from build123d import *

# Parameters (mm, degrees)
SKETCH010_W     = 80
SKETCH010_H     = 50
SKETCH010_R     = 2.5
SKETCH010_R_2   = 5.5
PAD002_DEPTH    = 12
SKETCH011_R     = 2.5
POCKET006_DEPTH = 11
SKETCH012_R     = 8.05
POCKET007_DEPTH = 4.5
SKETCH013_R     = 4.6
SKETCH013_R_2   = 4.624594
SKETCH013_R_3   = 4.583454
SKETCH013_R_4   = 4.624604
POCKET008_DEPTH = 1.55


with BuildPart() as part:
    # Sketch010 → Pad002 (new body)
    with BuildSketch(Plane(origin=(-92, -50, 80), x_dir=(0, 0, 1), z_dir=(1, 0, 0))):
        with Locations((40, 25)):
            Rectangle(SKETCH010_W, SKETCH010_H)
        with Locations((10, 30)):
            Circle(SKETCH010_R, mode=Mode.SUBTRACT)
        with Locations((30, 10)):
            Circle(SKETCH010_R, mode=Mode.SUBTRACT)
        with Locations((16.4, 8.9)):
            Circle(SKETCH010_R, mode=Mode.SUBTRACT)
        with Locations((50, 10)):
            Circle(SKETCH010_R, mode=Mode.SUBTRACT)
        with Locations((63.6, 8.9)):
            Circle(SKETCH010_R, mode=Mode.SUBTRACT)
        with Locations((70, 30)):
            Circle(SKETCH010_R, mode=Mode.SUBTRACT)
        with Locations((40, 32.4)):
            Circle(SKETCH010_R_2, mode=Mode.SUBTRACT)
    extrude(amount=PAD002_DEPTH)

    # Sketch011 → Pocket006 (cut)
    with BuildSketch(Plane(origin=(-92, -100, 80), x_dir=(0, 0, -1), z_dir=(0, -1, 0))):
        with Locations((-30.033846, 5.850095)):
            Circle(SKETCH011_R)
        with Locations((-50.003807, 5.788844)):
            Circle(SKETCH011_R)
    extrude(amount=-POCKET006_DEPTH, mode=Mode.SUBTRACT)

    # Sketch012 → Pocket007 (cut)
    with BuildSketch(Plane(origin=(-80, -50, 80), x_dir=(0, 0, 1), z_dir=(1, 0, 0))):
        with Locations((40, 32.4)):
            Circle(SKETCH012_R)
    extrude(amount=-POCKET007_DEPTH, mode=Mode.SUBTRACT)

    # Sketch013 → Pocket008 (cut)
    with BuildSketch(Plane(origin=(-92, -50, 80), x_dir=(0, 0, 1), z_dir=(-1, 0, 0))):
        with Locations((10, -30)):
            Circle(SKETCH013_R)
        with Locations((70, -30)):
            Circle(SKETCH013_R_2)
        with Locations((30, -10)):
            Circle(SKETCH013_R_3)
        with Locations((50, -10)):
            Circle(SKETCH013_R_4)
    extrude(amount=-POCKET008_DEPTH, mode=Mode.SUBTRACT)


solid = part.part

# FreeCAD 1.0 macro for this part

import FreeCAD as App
import Part
import Sketcher
Q = App.Units.Quantity


def add_polygon(sketch, points):
    """Adds a closed chain of lines whose ends are joined by coincident constraints."""
    first, n = sketch.GeometryCount, len(points)
    for a, b in zip(points, points[1:] + points[:1]):
        sketch.addGeometry(Part.LineSegment(App.Vector(*a, 0), App.Vector(*b, 0)), False)
    for i in range(n):
        sketch.addConstraint(Sketcher.Constraint("Coincident", first + i, 2, first + (i + 1) % n, 1))

doc = App.newDocument("Part")
params = doc.addObject("Spreadsheet::Sheet", "Params")
for row, (alias, value) in enumerate([
    ("sketch1_diameter", "5 mm"),
    ("sketch1_diameter2", "11 mm"),
    ("sketch1_width", "50 mm"),
    ("sketch1_height", "80 mm"),
    ("pad1_length", "12 mm"),
    ("sketch2_diameter", "5 mm"),
    ("pocket1_length", "11 mm"),
    ("sketch3_diameter", "16.1 mm"),
    ("pocket2_length", "4.5 mm"),
    ("sketch4_diameter", "9.2 mm"),
    ("pocket3_length", "1.55 mm"),
], start=1):
    params.set(f"A{row}", alias)
    params.set(f"B{row}", "=" + value)
    params.setAlias(f"B{row}", alias)

body = doc.addObject("PartDesign::Body", "Body")

# Sketch on YZ plane
sketch1 = body.newObject("Sketcher::SketchObject", "Sketch")
sketch1.AttachmentSupport = (doc.getObject("YZ_Plane"), [""])
sketch1.MapMode = "FlatFace"
sketch1.AttachmentOffset = App.Placement(App.Vector(0, 0, -92), App.Rotation())
add_polygon(sketch1, [(-100, 80), (-50, 80), (-50, 160), (-100, 160)])  # lines 0-3
sketch1.addGeometry(Part.Circle(App.Vector(-58.9, 96.4, 0), App.Vector(0, 0, 1), 2.5), False)  # 4
sketch1.addGeometry(Part.Circle(App.Vector(-60, 110, 0), App.Vector(0, 0, 1), 2.5), False)  # 5
sketch1.addGeometry(Part.Circle(App.Vector(-60, 130, 0), App.Vector(0, 0, 1), 2.5), False)  # 6
sketch1.addGeometry(Part.Circle(App.Vector(-58.9, 143.6, 0), App.Vector(0, 0, 1), 2.5), False)  # 7
sketch1.addGeometry(Part.Circle(App.Vector(-80, 90, 0), App.Vector(0, 0, 1), 2.5), False)  # 8
sketch1.addGeometry(Part.Circle(App.Vector(-80, 150, 0), App.Vector(0, 0, 1), 2.5), False)  # 9
sketch1.addGeometry(Part.Circle(App.Vector(-82.4, 120, 0), App.Vector(0, 0, 1), 5.5), False)  # 10
sketch1.addConstraint([
    Sketcher.Constraint("Horizontal", 0),
    Sketcher.Constraint("Vertical", 1),
    Sketcher.Constraint("Horizontal", 2),
    Sketcher.Constraint("Vertical", 3),
    Sketcher.Constraint("Equal", 4, 5),
    Sketcher.Constraint("Equal", 5, 6),
    Sketcher.Constraint("Equal", 6, 7),
    Sketcher.Constraint("Equal", 7, 8),
    Sketcher.Constraint("Equal", 8, 9),
    Sketcher.Constraint("Vertical", 5, 3, 6, 3),
    Sketcher.Constraint("Vertical", 4, 3, 7, 3),
    Sketcher.Constraint("Vertical", 8, 3, 9, 3),
    Sketcher.Constraint("Diameter", 4, Q("5 mm")),
    Sketcher.Constraint("Diameter", 10, Q("11 mm")),
    Sketcher.Constraint("DistanceX", 0, 1, 0, 2, Q("50 mm")),
    Sketcher.Constraint("DistanceY", 1, 1, 1, 2, Q("80 mm")),
    Sketcher.Constraint("DistanceX", 5, 3, -1, 1, Q("60 mm")),
    Sketcher.Constraint("DistanceY", -1, 1, 5, 3, Q("110 mm")),
    Sketcher.Constraint("DistanceY", -1, 1, 6, 3, Q("130 mm")),
    Sketcher.Constraint("DistanceX", 8, 3, -1, 1, Q("80 mm")),
    Sketcher.Constraint("DistanceY", -1, 1, 8, 3, Q("90 mm")),
    Sketcher.Constraint("DistanceY", -1, 1, 9, 3, Q("150 mm")),
    Sketcher.Constraint("DistanceY", -1, 1, 10, 3, Q("120 mm")),
    Sketcher.Constraint("DistanceX", 0, 2, -1, 1, Q("50 mm")),
    Sketcher.Constraint("DistanceY", -1, 1, 0, 2, Q("80 mm")),
    Sketcher.Constraint("DistanceX", 4, 3, -1, 1, Q("58.9 mm")),
    Sketcher.Constraint("DistanceY", -1, 1, 4, 3, Q("96.4 mm")),
    Sketcher.Constraint("DistanceY", -1, 1, 7, 3, Q("143.6 mm")),
    Sketcher.Constraint("DistanceX", 10, 3, -1, 1, Q("82.4 mm")),
])
sketch1.setExpression("Constraints[16]", "Params.sketch1_diameter")
sketch1.setExpression("Constraints[17]", "Params.sketch1_diameter2")
sketch1.setExpression("Constraints[18]", "Params.sketch1_width")
sketch1.setExpression("Constraints[19]", "Params.sketch1_height")
pad1 = body.newObject("PartDesign::Pad", "Pad")
pad1.Profile = sketch1
pad1.setExpression("Length", "Params.pad1_length")

# Sketch on XZ plane
sketch2 = body.newObject("Sketcher::SketchObject", "Sketch001")
sketch2.AttachmentSupport = (doc.getObject("XZ_Plane"), [""])
sketch2.MapMode = "FlatFace"
sketch2.AttachmentOffset = App.Placement(App.Vector(0, 0, 100), App.Rotation())
sketch2.addGeometry([
    Part.Circle(App.Vector(-86.1, 110, 0), App.Vector(0, 0, 1), 2.5),
    Part.Circle(App.Vector(-86.2, 130, 0), App.Vector(0, 0, 1), 2.5),
], False)
sketch2.addConstraint([
    Sketcher.Constraint("Equal", 0, 1),
    Sketcher.Constraint("Diameter", 0, Q("5 mm")),
    Sketcher.Constraint("DistanceX", 1, 3, 0, 3, Q("0.061251 mm")),
    Sketcher.Constraint("DistanceY", 0, 3, 1, 3, Q("19.969961 mm")),
    Sketcher.Constraint("DistanceX", 0, 3, -1, 1, Q("86.149905 mm")),
    Sketcher.Constraint("DistanceY", -1, 1, 0, 3, Q("110.033846 mm")),
])
sketch2.setExpression("Constraints[1]", "Params.sketch2_diameter")
pocket1 = body.newObject("PartDesign::Pocket", "Pocket")
pocket1.Profile = sketch2
pocket1.setExpression("Length", "Params.pocket1_length")

# Sketch on YZ plane
sketch3 = body.newObject("Sketcher::SketchObject", "Sketch002")
sketch3.AttachmentSupport = (doc.getObject("YZ_Plane"), [""])
sketch3.MapMode = "FlatFace"
sketch3.AttachmentOffset = App.Placement(App.Vector(0, 0, -80), App.Rotation())
sketch3.addGeometry(Part.Circle(App.Vector(-82, 120, 0), App.Vector(0, 0, 1), 8), False)
sketch3.addConstraint([
    Sketcher.Constraint("Diameter", 0, Q("16.1 mm")),
    Sketcher.Constraint("DistanceY", -1, 1, 0, 3, Q("120 mm")),
    Sketcher.Constraint("DistanceX", 0, 3, -1, 1, Q("82.4 mm")),
])
sketch3.setExpression("Constraints[0]", "Params.sketch3_diameter")
pocket2 = body.newObject("PartDesign::Pocket", "Pocket001")
pocket2.Profile = sketch3
pocket2.setExpression("Length", "Params.pocket2_length")

# Sketch on YZ plane
sketch4 = body.newObject("Sketcher::SketchObject", "Sketch003")
sketch4.AttachmentSupport = (doc.getObject("YZ_Plane"), [""])
sketch4.MapMode = "FlatFace"
sketch4.AttachmentOffset = App.Placement(App.Vector(0, 0, -92), App.Rotation())
sketch4.addGeometry([
    Part.Circle(App.Vector(-80, 90, 0), App.Vector(0, 0, 1), 4.6),
    Part.Circle(App.Vector(-80, 150, 0), App.Vector(0, 0, 1), 4.6),
    Part.Circle(App.Vector(-60, 110, 0), App.Vector(0, 0, 1), 4.6),
    Part.Circle(App.Vector(-60, 130, 0), App.Vector(0, 0, 1), 4.6),
], False)
sketch4.addConstraint([
    Sketcher.Constraint("Vertical", 0, 3, 1, 3),
    Sketcher.Constraint("Vertical", 2, 3, 3, 3),
    Sketcher.Constraint("Diameter", 0, Q("9.2 mm")),
    Sketcher.Constraint("DistanceX", 0, 3, -1, 1, Q("80 mm")),
    Sketcher.Constraint("DistanceY", -1, 1, 0, 3, Q("90 mm")),
    Sketcher.Constraint("DistanceY", -1, 1, 1, 3, Q("150 mm")),
    Sketcher.Constraint("DistanceX", 2, 3, -1, 1, Q("60 mm")),
    Sketcher.Constraint("DistanceY", -1, 1, 2, 3, Q("110 mm")),
    Sketcher.Constraint("DistanceY", -1, 1, 3, 3, Q("130 mm")),
    Sketcher.Constraint("Diameter", 1, Q("9.249188 mm")),
    Sketcher.Constraint("Diameter", 2, Q("9.166908 mm")),
    Sketcher.Constraint("Diameter", 3, Q("9.249208 mm")),
])
sketch4.setExpression("Constraints[2]", "Params.sketch4_diameter")
pocket3 = body.newObject("PartDesign::Pocket", "Pocket002")
pocket3.Profile = sketch4
pocket3.setExpression("Length", "Params.pocket3_length")
pocket3.Reversed = True

doc.recompute()
